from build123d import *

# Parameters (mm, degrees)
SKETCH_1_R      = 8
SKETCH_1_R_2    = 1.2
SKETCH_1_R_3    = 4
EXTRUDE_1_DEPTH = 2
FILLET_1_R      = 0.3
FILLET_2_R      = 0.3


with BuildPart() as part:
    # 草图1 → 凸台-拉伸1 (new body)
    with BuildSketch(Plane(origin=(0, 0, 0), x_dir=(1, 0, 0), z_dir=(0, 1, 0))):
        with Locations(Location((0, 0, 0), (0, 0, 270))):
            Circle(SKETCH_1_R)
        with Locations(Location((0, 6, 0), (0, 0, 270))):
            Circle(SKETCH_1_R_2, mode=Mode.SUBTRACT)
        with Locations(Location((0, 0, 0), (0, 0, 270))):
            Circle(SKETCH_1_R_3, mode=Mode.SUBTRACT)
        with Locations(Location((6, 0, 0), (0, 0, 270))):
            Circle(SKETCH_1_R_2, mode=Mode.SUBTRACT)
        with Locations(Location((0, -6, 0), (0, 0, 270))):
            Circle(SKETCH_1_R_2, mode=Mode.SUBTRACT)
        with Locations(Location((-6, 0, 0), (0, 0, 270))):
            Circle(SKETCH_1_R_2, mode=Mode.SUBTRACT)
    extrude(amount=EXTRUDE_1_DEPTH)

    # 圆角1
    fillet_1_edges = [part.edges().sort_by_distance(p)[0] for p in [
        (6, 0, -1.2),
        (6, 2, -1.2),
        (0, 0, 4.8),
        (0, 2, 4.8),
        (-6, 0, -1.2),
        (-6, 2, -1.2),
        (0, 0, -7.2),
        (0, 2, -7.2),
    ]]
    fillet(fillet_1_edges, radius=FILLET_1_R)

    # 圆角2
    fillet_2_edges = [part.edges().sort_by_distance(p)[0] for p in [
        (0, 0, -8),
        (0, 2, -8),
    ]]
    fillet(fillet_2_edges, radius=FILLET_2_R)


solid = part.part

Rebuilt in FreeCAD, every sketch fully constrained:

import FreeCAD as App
import Part
import Sketcher
Q = App.Units.Quantity


def edges_at(feature, points):
    """Names of the edges that pass closest to the given points."""
    edges = feature.Shape.Edges
    near = lambda p: min(range(len(edges)), key=lambda i: edges[i].distToShape(Part.Vertex(*p))[0])
    return sorted({f"Edge{near(p) + 1}" for p in points})

doc = App.newDocument("Part")
body = doc.addObject("PartDesign::Body", "Body")

# Sketch on XZ plane
sketch1 = body.newObject("Sketcher::SketchObject", "Sketch")
sketch1.AttachmentSupport = (doc.getObject("XZ_Plane"), [""])
sketch1.MapMode = "FlatFace"
sketch1.addGeometry([
    Part.Circle(App.Vector(0, 0, 0), App.Vector(0, 0, 1), 8),  # 0
    Part.Circle(App.Vector(-6, 0, 0), App.Vector(0, 0, 1), 1.2),  # 1
    Part.Circle(App.Vector(0, -6, 0), App.Vector(0, 0, 1), 1.2),  # 2
    Part.Circle(App.Vector(6, 0, 0), App.Vector(0, 0, 1), 1.2),  # 3
    Part.Circle(App.Vector(0, 0, 0), App.Vector(0, 0, 1), 4),  # 4
    Part.Circle(App.Vector(0, 6, 0), App.Vector(0, 0, 1), 1.2),  # 5
], False)
sketch1.addConstraint([
    Sketcher.Constraint("Coincident", 0, 3, -1, 1),
    Sketcher.Constraint("Coincident", 4, 3, -1, 1),
    Sketcher.Constraint("Equal", 1, 2),
    Sketcher.Constraint("Equal", 2, 3),
    Sketcher.Constraint("Equal", 3, 5),
    Sketcher.Constraint("Symmetric", 1, 3, 3, 3, -1, 1),
    Sketcher.Constraint("Symmetric", 2, 3, 5, 3, -1, 1),
    Sketcher.Constraint("PointOnObject", 1, 3, -1),
    Sketcher.Constraint("PointOnObject", 2, 3, -2),
    Sketcher.Constraint("Diameter", 0, Q("16 mm")),
    Sketcher.Constraint("Diameter", 4, Q("8 mm")),
    Sketcher.Constraint("Diameter", 1, Q("2.4 mm")),
    Sketcher.Constraint("DistanceX", 1, 3, -1, 1, Q("6 mm")),
    Sketcher.Constraint("DistanceY", 2, 3, -1, 1, Q("6 mm")),
])
pad1 = body.newObject("PartDesign::Pad", "Pad")
pad1.Profile = sketch1
pad1.Length = 2
pad1.Reversed = True
doc.recompute()

fillet = body.newObject("PartDesign::Fillet", "Fillet")
fillet.Base = (pad1, edges_at(pad1, [
    (6, 0, -1.2),
    (6, 2, -1.2),
    (0, 0, 4.8),
    (0, 2, 4.8),
    (-6, 0, -1.2),
    (-6, 2, -1.2),
    (0, 0, -7.2),
    (0, 2, -7.2),
]))
fillet.Radius = 0.3
doc.recompute()

fillet2 = body.newObject("PartDesign::Fillet", "Fillet001")
fillet2.Base = (fillet, edges_at(fillet, [(0, 0, -8), (0, 2, -8)]))
fillet2.Radius = 0.3

doc.recompute()
